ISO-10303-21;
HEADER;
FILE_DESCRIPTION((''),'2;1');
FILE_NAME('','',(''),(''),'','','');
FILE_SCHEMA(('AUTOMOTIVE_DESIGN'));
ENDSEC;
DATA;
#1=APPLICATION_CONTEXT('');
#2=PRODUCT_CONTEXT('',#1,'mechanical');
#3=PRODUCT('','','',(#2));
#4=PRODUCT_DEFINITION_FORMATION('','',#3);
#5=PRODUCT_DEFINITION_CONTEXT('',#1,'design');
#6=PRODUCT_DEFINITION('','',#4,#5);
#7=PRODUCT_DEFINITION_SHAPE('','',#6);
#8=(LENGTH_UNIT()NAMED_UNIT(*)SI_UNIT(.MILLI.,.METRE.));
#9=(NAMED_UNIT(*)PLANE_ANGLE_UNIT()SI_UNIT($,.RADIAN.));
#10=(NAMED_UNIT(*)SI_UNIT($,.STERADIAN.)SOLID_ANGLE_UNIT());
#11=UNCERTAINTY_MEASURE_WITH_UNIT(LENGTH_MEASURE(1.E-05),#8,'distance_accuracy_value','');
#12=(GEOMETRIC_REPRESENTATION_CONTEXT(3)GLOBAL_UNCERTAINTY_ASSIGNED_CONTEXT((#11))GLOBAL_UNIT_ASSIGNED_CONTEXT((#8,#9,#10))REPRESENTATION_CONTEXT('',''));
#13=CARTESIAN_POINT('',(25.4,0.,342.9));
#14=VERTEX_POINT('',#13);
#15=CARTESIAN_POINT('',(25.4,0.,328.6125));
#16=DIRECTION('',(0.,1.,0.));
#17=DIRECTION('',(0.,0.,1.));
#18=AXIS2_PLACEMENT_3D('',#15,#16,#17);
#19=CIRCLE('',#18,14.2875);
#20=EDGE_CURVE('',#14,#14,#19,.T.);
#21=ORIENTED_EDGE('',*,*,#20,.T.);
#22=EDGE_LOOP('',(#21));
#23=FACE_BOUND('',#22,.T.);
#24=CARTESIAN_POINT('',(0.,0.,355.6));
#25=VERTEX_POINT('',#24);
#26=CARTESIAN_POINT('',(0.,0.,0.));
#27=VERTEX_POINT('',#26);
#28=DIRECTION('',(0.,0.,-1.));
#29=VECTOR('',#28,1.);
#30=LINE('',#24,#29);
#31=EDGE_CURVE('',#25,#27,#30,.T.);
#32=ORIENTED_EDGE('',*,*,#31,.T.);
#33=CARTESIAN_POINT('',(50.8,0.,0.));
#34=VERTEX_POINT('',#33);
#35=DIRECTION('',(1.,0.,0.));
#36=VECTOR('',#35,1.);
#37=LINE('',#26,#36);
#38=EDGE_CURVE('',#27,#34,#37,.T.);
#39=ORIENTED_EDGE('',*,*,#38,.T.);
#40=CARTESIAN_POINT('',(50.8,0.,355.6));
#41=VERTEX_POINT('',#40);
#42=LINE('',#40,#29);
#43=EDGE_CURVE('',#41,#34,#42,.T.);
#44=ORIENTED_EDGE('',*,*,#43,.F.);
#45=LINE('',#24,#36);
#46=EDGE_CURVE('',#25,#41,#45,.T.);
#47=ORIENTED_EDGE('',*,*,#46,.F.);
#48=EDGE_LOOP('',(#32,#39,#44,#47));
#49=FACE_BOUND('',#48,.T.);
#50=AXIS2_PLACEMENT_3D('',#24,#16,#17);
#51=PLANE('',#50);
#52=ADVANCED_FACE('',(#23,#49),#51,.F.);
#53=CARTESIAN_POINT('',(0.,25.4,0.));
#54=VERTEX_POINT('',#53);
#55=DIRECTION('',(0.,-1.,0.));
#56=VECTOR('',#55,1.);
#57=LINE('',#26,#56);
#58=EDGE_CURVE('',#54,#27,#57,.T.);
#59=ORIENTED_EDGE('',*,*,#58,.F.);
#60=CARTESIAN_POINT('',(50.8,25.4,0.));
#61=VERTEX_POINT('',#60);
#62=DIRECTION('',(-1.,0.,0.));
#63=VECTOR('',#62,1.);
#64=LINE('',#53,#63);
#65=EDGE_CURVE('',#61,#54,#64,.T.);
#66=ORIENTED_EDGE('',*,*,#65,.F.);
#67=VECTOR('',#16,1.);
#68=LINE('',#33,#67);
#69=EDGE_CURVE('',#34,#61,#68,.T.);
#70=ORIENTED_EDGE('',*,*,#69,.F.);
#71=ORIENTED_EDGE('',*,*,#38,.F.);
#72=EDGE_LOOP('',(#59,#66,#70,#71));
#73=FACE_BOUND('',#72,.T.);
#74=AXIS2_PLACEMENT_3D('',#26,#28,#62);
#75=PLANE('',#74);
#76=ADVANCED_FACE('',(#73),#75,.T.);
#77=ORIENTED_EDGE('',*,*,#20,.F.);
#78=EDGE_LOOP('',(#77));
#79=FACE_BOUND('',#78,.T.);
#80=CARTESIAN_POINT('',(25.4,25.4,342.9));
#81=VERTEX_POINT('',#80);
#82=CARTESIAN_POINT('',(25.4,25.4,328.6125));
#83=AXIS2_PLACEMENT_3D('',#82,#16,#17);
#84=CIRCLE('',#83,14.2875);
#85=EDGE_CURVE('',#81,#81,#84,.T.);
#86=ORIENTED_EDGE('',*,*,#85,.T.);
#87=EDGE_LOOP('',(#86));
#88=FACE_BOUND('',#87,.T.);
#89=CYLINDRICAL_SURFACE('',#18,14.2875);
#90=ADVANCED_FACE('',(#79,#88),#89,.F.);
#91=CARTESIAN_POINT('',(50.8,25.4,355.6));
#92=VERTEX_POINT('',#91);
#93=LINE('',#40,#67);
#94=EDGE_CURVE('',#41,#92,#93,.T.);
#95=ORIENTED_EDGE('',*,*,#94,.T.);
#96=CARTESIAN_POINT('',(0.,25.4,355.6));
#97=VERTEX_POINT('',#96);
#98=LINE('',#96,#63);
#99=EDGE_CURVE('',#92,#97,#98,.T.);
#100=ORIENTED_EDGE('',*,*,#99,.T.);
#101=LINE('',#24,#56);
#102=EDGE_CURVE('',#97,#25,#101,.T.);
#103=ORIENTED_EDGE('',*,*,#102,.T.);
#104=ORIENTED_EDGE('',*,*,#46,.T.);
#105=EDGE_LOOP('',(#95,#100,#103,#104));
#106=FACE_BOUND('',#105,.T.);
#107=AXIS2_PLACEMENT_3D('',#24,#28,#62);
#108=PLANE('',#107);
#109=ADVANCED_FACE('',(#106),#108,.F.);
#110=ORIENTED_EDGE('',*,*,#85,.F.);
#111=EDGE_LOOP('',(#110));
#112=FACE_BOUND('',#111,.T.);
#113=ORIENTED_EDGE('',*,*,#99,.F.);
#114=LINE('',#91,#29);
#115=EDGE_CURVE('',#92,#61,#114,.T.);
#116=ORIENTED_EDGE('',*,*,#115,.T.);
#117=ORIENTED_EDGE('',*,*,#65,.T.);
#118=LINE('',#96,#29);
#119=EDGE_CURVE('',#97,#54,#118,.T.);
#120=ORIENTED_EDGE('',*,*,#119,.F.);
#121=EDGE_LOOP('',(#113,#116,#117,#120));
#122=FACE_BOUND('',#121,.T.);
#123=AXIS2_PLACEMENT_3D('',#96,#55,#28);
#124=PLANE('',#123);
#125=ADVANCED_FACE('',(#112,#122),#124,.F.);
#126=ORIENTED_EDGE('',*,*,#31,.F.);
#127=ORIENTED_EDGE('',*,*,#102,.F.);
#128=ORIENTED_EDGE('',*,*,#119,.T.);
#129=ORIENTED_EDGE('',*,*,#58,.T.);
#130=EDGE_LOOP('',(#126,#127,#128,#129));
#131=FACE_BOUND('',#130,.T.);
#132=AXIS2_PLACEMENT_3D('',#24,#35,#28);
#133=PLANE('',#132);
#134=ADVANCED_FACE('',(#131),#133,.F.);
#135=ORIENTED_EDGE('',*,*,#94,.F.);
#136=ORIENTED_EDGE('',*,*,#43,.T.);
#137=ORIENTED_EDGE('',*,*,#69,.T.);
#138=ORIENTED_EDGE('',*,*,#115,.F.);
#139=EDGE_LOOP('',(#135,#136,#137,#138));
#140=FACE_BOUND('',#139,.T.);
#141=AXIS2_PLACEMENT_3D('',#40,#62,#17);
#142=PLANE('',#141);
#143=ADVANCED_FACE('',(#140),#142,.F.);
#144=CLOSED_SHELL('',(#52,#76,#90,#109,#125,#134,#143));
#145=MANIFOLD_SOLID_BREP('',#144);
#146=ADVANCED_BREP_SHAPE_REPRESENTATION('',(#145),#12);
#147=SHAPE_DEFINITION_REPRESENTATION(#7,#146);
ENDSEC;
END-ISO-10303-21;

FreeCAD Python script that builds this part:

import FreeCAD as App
import Part
import Sketcher
from FreeCAD import Vector
Q = App.Units.Quantity

doc = App.newDocument("Part")
body = doc.addObject("PartDesign::Body", "Body")

sketch1 = body.newObject("Sketcher::SketchObject", "Sketch")
sketch1.AttachmentSupport = (doc.getObject("XY_Plane"), [""])
sketch1.MapMode = "FlatFace"
sketch1.addGeometry([
    Part.LineSegment(Vector(0, 25, 0), Vector(0, 0, 0)),
    Part.LineSegment(Vector(0, 0, 0), Vector(51, 0, 0)),
    Part.LineSegment(Vector(51, 0, 0), Vector(51, 25, 0)),
    Part.LineSegment(Vector(51, 25, 0), Vector(0, 25, 0)),
], False)
sketch1.addConstraint([
    Sketcher.Constraint("Coincident", 0, 2, 1, 1),
    Sketcher.Constraint("Coincident", 1, 2, 2, 1),
    Sketcher.Constraint("Coincident", 2, 2, 3, 1),
    Sketcher.Constraint("Coincident", 3, 2, 0, 1),
    Sketcher.Constraint("Vertical", 0),
    Sketcher.Constraint("Horizontal", 1),
    Sketcher.Constraint("Vertical", 2),
    Sketcher.Constraint("Horizontal", 3),
    Sketcher.Constraint("Coincident", 0, 2, -1, 1),
    Sketcher.Constraint("DistanceX", 1, 1, 1, 2, Q("2 in")),
    Sketcher.Constraint("DistanceY", 0, 2, 0, 1, Q("1 in")),
])
pad1 = body.newObject("PartDesign::Pad", "Pad")
pad1.Profile = sketch1
pad1.Length = Q("14 in")

sketch2 = body.newObject("Sketcher::SketchObject", "Sketch001")
sketch2.AttachmentSupport = (doc.getObject("XZ_Plane"), [""])
sketch2.MapMode = "FlatFace"
sketch2.AttachmentOffset = App.Placement(Vector(0, 0, -1 * 25.4), App.Rotation())
sketch2.addGeometry(Part.Circle(Vector(25, 329, 0), Vector(0, 0, 1), 14), False)
sketch2.addConstraint([
    Sketcher.Constraint("Diameter", 0, Q("1.125 in")),
    Sketcher.Constraint("DistanceX", -1, 1, 0, 3, Q("1 in")),
    Sketcher.Constraint("DistanceY", -1, 1, 0, 3, Q("12.9375 in")),
])
pocket1 = body.newObject("PartDesign::Pocket", "Pocket")
pocket1.Profile = sketch2
pocket1.Type = "ThroughAll"
pocket1.Reversed = True

doc.recompute()
